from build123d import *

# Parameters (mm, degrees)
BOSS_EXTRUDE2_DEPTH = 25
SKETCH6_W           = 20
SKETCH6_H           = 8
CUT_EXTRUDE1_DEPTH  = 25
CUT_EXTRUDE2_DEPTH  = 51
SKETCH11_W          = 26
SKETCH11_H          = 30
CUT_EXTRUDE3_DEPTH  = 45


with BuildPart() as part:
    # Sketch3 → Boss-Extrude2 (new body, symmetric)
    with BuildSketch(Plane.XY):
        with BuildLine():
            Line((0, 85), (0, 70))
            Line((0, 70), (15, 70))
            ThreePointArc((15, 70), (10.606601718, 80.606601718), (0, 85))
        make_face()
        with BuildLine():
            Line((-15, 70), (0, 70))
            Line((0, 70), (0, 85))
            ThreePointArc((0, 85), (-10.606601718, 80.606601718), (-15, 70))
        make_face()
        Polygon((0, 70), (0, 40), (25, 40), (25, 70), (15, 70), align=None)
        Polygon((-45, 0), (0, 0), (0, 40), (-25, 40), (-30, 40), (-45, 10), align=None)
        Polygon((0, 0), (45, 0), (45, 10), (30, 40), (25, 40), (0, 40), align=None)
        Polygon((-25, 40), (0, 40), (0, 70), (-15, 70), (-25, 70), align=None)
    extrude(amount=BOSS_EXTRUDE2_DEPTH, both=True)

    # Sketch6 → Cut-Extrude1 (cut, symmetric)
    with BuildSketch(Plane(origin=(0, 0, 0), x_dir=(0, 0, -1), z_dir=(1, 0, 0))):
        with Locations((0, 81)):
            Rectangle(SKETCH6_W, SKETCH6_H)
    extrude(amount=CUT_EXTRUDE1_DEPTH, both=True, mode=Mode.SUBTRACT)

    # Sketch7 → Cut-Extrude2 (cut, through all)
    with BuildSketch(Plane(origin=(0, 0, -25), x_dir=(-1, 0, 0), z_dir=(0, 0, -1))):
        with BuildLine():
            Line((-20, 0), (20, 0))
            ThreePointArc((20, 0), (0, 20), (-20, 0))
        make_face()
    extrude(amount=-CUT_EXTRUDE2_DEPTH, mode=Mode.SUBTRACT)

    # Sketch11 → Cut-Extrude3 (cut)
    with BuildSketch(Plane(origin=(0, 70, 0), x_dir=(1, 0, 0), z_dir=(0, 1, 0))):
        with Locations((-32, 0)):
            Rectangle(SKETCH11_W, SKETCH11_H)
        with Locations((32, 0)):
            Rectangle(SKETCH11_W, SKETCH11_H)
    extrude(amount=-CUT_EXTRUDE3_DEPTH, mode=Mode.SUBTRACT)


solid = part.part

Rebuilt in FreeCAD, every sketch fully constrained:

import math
import FreeCAD as App
import Part
import Sketcher
from FreeCAD import Vector
Q = App.Units.Quantity


def add_polygon(sketch, points):
    """Adds a closed chain of lines whose ends are joined by coincident constraints."""
    first, n = sketch.GeometryCount, len(points)
    for a, b in zip(points, points[1:] + points[:1]):
        sketch.addGeometry(Part.LineSegment(App.Vector(*a, 0), App.Vector(*b, 0)), False)
    for i in range(n):
        sketch.addConstraint(Sketcher.Constraint("Coincident", first + i, 2, first + (i + 1) % n, 1))

doc = App.newDocument("Part")
params = doc.addObject("Spreadsheet::Sheet", "Params")
for row, (alias, value) in enumerate([
    ("sketch1_radius", "15 mm"),
    ("sketch1_width", "10 mm"),
    ("sketch1_width2", "5 mm"),
    ("sketch1_width3", "90 mm"),
    ("sketch1_height", "30 mm"),
    ("pad1_length", "50 mm"),
    ("sketch2_width", "8 mm"),
    ("sketch2_height", "20 mm"),
    ("pocket1_length", "50 mm"),
    ("sketch3_radius", "20 mm"),
    ("sketch4_width", "26 mm"),
    ("sketch4_height", "30 mm"),
    ("pocket3_length", "45 mm"),
], start=1):
    params.set(f"A{row}", alias)
    params.set(f"B{row}", "=" + value)
    params.setAlias(f"B{row}", alias)

body = doc.addObject("PartDesign::Body", "Body")

# Sketch on XY plane
sketch1 = body.newObject("Sketcher::SketchObject", "Sketch")
sketch1.AttachmentSupport = (doc.getObject("XY_Plane"), [""])
sketch1.MapMode = "FlatFace"
sketch1.addGeometry([
    Part.ArcOfCircle(Part.Circle(Vector(0, 70, 0), Vector(0, 0, 1), 15), math.radians(0), math.radians(90)),  # 0
    Part.ArcOfCircle(Part.Circle(Vector(0, 70, 0), Vector(0, 0, 1), 15), math.radians(90), math.radians(180)),  # 1
    Part.LineSegment(Vector(-15, 70, 0), Vector(-25, 70, 0)),  # 2
    Part.LineSegment(Vector(-25, 70, 0), Vector(-25, 40, 0)),  # 3
    Part.LineSegment(Vector(-25, 40, 0), Vector(-30, 40, 0)),  # 4
    Part.LineSegment(Vector(-30, 40, 0), Vector(-45, 10, 0)),  # 5
    Part.LineSegment(Vector(-45, 10, 0), Vector(-45, 0, 0)),  # 6
    Part.LineSegment(Vector(-45, 0, 0), Vector(45, 0, 0)),  # 7
    Part.LineSegment(Vector(45, 0, 0), Vector(45, 10, 0)),  # 8
    Part.LineSegment(Vector(45, 10, 0), Vector(30, 40, 0)),  # 9
    Part.LineSegment(Vector(30, 40, 0), Vector(25, 40, 0)),  # 10
    Part.LineSegment(Vector(25, 40, 0), Vector(25, 70, 0)),  # 11
    Part.LineSegment(Vector(25, 70, 0), Vector(15, 70, 0)),  # 12
], False)
sketch1.addConstraint([
    Sketcher.Constraint("Tangent", 0, 2, 1, 1),
    Sketcher.Constraint("Coincident", 1, 2, 2, 1),
    Sketcher.Constraint("Coincident", 2, 2, 3, 1),
    Sketcher.Constraint("Coincident", 3, 2, 4, 1),
    Sketcher.Constraint("Coincident", 4, 2, 5, 1),
    Sketcher.Constraint("Coincident", 5, 2, 6, 1),
    Sketcher.Constraint("Coincident", 6, 2, 7, 1),
    Sketcher.Constraint("Coincident", 7, 2, 8, 1),
    Sketcher.Constraint("Coincident", 8, 2, 9, 1),
    Sketcher.Constraint("Coincident", 9, 2, 10, 1),
    Sketcher.Constraint("Coincident", 10, 2, 11, 1),
    Sketcher.Constraint("Coincident", 11, 2, 12, 1),
    Sketcher.Constraint("Coincident", 12, 2, 0, 1),
    Sketcher.Constraint("Horizontal", 2),
    Sketcher.Constraint("Vertical", 3),
    Sketcher.Constraint("Horizontal", 4),
    Sketcher.Constraint("Vertical", 6),
    Sketcher.Constraint("Horizontal", 7),
    Sketcher.Constraint("Vertical", 8),
    Sketcher.Constraint("Horizontal", 10),
    Sketcher.Constraint("Vertical", 11),
    Sketcher.Constraint("Horizontal", 12),
    Sketcher.Constraint("Equal", 0, 1),
    Sketcher.Constraint("Symmetric", 6, 2, 7, 2, -1, 1),
    Sketcher.Constraint("Symmetric", 4, 2, 9, 2, -2),
    Sketcher.Constraint("Symmetric", 2, 2, 11, 2, -2),
    Sketcher.Constraint("PointOnObject", 0, 3, -2),
    Sketcher.Constraint("PointOnObject", 0, 2, -2),
    Sketcher.Constraint("Horizontal", 0, 3, 1, 2),
    Sketcher.Constraint("Horizontal", 5, 2, 8, 2),
    Sketcher.Constraint("Equal", 12, 6),
    Sketcher.Constraint("Radius", 0, Q("15 mm")),
    Sketcher.Constraint("DistanceX", 2, 2, 2, 1, Q("10 mm")),
    Sketcher.Constraint("DistanceX", 4, 2, 4, 1, Q("5 mm")),
    Sketcher.Constraint("DistanceX", 7, 1, 7, 2, Q("90 mm")),
    Sketcher.Constraint("DistanceY", 3, 2, 3, 1, Q("30 mm")),
    Sketcher.Constraint("DistanceY", -1, 1, 0, 3, Q("70 mm")),
])
sketch1.setExpression("Constraints[31]", "Params.sketch1_radius")
sketch1.setExpression("Constraints[32]", "Params.sketch1_width")
sketch1.setExpression("Constraints[33]", "Params.sketch1_width2")
sketch1.setExpression("Constraints[34]", "Params.sketch1_width3")
sketch1.setExpression("Constraints[35]", "Params.sketch1_height")
pad1 = body.newObject("PartDesign::Pad", "Pad")
pad1.Profile = sketch1
pad1.setExpression("Length", "Params.pad1_length")
pad1.Midplane = True

# Sketch on YZ plane
sketch2 = body.newObject("Sketcher::SketchObject", "Sketch001")
sketch2.AttachmentSupport = (doc.getObject("YZ_Plane"), [""])
sketch2.MapMode = "FlatFace"
add_polygon(sketch2, [(85, 10), (77, 10), (77, -10), (85, -10)])  # lines 0-3
sketch2.addConstraint([
    Sketcher.Constraint("Horizontal", 0),
    Sketcher.Constraint("Vertical", 1),
    Sketcher.Constraint("Horizontal", 2),
    Sketcher.Constraint("Vertical", 3),
    Sketcher.Constraint("DistanceX", 0, 2, 0, 1, Q("8 mm")),
    Sketcher.Constraint("DistanceY", 1, 2, 1, 1, Q("20 mm")),
    Sketcher.Constraint("DistanceX", -1, 1, 0, 2, Q("77 mm")),
    Sketcher.Constraint("DistanceY", -1, 1, 0, 2, Q("10 mm")),
])
sketch2.setExpression("Constraints[8]", "Params.sketch2_width")
sketch2.setExpression("Constraints[9]", "Params.sketch2_height")
pocket1 = body.newObject("PartDesign::Pocket", "Pocket")
pocket1.Profile = sketch2
pocket1.setExpression("Length", "Params.pocket1_length")
pocket1.Midplane = True

# Sketch on XY plane
sketch3 = body.newObject("Sketcher::SketchObject", "Sketch002")
sketch3.AttachmentSupport = (doc.getObject("XY_Plane"), [""])
sketch3.MapMode = "FlatFace"
sketch3.AttachmentOffset = App.Placement(Vector(0, 0, -25), App.Rotation())
sketch3.addGeometry([
    Part.LineSegment(Vector(20, 0, 0), Vector(-20, 0, 0)),
    Part.ArcOfCircle(Part.Circle(Vector(0, 0, 0), Vector(0, 0, 1), 20), math.radians(0), math.radians(180)),
], False)
sketch3.addConstraint([
    Sketcher.Constraint("Coincident", 0, 1, 1, 1),
    Sketcher.Constraint("Coincident", 1, 2, 0, 2),
    Sketcher.Constraint("Horizontal", 0),
    Sketcher.Constraint("Coincident", 1, 3, -1, 1),
    Sketcher.Constraint("PointOnObject", 0, 1, -1),
    Sketcher.Constraint("Radius", 1, Q("20 mm")),
])
sketch3.setExpression("Constraints[5]", "Params.sketch3_radius")
pocket2 = body.newObject("PartDesign::Pocket", "Pocket001")
pocket2.Profile = sketch3
pocket2.Type = "ThroughAll"
pocket2.Reversed = True

# Sketch on XZ plane
sketch4 = body.newObject("Sketcher::SketchObject", "Sketch003")
sketch4.AttachmentSupport = (doc.getObject("XZ_Plane"), [""])
sketch4.MapMode = "FlatFace"
sketch4.AttachmentOffset = App.Placement(Vector(0, 0, -70), App.Rotation())
add_polygon(sketch4, [(-45, -15), (-45, 15), (-19, 15), (-19, -15)])  # lines 0-3
add_polygon(sketch4, [(19, -15), (19, 15), (45, 15), (45, -15)])  # lines 4-7
sketch4.addConstraint([
    Sketcher.Constraint("Vertical", 0),
    Sketcher.Constraint("Horizontal", 1),
    Sketcher.Constraint("Vertical", 2),
    Sketcher.Constraint("Horizontal", 3),
    Sketcher.Constraint("Vertical", 4),
    Sketcher.Constraint("Horizontal", 5),
    Sketcher.Constraint("Vertical", 6),
    Sketcher.Constraint("Horizontal", 7),
    Sketcher.Constraint("Symmetric", 2, 2, 4, 2, -1, 1),
    Sketcher.Constraint("Symmetric", 0, 2, 6, 2, -1, 1),
    Sketcher.Constraint("Horizontal", 1, 2, 4, 2),
    Sketcher.Constraint("DistanceX", 1, 1, 1, 2, Q("26 mm")),
    Sketcher.Constraint("DistanceY", 0, 1, 0, 2, Q("30 mm")),
    Sketcher.Constraint("DistanceX", 0, 2, -1, 1, Q("45 mm")),
])
sketch4.setExpression("Constraints[19]", "Params.sketch4_width")
sketch4.setExpression("Constraints[20]", "Params.sketch4_height")
pocket3 = body.newObject("PartDesign::Pocket", "Pocket002")
pocket3.Profile = sketch4
pocket3.setExpression("Length", "Params.pocket3_length")
pocket3.Reversed = True

doc.recompute()
